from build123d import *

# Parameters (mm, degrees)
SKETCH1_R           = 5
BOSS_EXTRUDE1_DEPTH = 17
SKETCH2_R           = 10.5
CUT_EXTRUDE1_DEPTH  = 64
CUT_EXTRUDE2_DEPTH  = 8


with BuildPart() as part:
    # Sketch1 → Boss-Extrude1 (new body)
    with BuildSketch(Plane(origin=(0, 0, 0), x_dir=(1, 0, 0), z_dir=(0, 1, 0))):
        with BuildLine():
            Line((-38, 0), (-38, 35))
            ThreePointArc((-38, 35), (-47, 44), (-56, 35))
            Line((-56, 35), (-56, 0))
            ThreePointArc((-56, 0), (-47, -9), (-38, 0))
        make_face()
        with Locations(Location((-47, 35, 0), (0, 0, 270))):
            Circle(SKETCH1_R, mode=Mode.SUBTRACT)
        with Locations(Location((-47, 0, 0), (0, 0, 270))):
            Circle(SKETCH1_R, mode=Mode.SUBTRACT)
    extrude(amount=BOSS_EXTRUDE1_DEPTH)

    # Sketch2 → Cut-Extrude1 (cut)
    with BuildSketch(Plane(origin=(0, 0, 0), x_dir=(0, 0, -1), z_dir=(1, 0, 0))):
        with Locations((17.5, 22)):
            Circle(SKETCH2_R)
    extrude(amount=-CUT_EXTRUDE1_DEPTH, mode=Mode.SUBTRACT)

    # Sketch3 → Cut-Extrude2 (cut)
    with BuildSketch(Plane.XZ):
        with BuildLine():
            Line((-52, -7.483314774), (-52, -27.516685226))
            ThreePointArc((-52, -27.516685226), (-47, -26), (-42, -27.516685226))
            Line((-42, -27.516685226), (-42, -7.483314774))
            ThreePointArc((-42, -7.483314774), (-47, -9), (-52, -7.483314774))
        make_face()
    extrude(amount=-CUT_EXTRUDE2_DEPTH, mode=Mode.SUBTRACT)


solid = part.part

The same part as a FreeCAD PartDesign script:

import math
import FreeCAD as App
import Part
import Sketcher

V = App.Vector

doc = App.newDocument("Part")
body = doc.addObject("PartDesign::Body", "Body")

sketch1 = body.newObject("Sketcher::SketchObject", "Sketch")
sketch1.AttachmentSupport = (doc.getObject("XZ_Plane"), [""])
sketch1.MapMode = "FlatFace"
sketch1.addGeometry([
    Part.LineSegment(V(-38, 0, 0), V(-38, -35, 0)),
    Part.ArcOfCircle(Part.Circle(V(-47, -35, 0), V(0, 0, 1), 9), math.radians(180), math.radians(360)),
    Part.LineSegment(V(-56, -35, 0), V(-56, 0, 0)),
    Part.ArcOfCircle(Part.Circle(V(-47, 0, 0), V(0, 0, 1), 9), math.radians(0), math.radians(180)),
    Part.Circle(V(-47, 0, 0), V(0, 0, 1), 5),
    Part.Circle(V(-47, -35, 0), V(0, 0, 1), 5),
], False)
sketch1.addConstraint([
    Sketcher.Constraint("Tangent", 0, 2, 1, 2),
    Sketcher.Constraint("Tangent", 1, 1, 2, 1),
    Sketcher.Constraint("Tangent", 2, 2, 3, 2),
    Sketcher.Constraint("Tangent", 3, 1, 0, 1),
    Sketcher.Constraint("Vertical", 0),
    Sketcher.Constraint("Vertical", 2),
    Sketcher.Constraint("Coincident", 4, 3, 3, 3),
    Sketcher.Constraint("Coincident", 5, 3, 1, 3),
    Sketcher.Constraint("Equal", 4, 5),
    Sketcher.Constraint("PointOnObject", 3, 3, -1),
    Sketcher.Constraint("Diameter", 4, 10.0),
    Sketcher.Constraint("Radius", 1, 9.0),
    Sketcher.Constraint("DistanceY", 0, 2, 0, 1, 35.0),
    Sketcher.Constraint("DistanceX", 1, 3, -1, 1, 47.0),
])
pad1 = body.newObject("PartDesign::Pad", "Pad")
pad1.Profile = sketch1
pad1.Length = 17
pad1.Reversed = True

sketch2 = body.newObject("Sketcher::SketchObject", "Sketch001")
sketch2.AttachmentSupport = (doc.getObject("YZ_Plane"), [""])
sketch2.MapMode = "FlatFace"
sketch2.addGeometry(Part.Circle(V(22, -17.5, 0), V(0, 0, 1), 10.5), False)
sketch2.addConstraint([
    Sketcher.Constraint("Diameter", 0, 21.0),
    Sketcher.Constraint("DistanceX", -1, 1, 0, 3, 22.0),
    Sketcher.Constraint("DistanceY", 0, 3, -1, 1, 17.5),
])
pocket1 = body.newObject("PartDesign::Pocket", "Pocket")
pocket1.Profile = sketch2
pocket1.Length = 64

sketch3 = body.newObject("Sketcher::SketchObject", "Sketch002")
sketch3.AttachmentSupport = (doc.getObject("XZ_Plane"), [""])
sketch3.MapMode = "FlatFace"
sketch3.addGeometry([
    Part.LineSegment(V(-52, -7.483315, 0), V(-52, -27.516685, 0)),
    Part.ArcOfCircle(Part.Circle(V(-47, -35, 0), V(0, 0, 1), 9), math.radians(56.251011), math.radians(123.748989)),
    Part.LineSegment(V(-42, -27.516685, 0), V(-42, -7.483315, 0)),
    Part.ArcOfCircle(Part.Circle(V(-47, 0, 0), V(0, 0, 1), 9), math.radians(-123.748989), math.radians(-56.251011)),
], False)
sketch3.addConstraint([
    Sketcher.Constraint("Coincident", 0, 2, 1, 2),
    Sketcher.Constraint("Coincident", 1, 1, 2, 1),
    Sketcher.Constraint("Coincident", 2, 2, 3, 2),
    Sketcher.Constraint("Coincident", 3, 1, 0, 1),
    Sketcher.Constraint("Vertical", 0),
    Sketcher.Constraint("Vertical", 2),
    Sketcher.Constraint("Equal", 1, 3),
    Sketcher.Constraint("PointOnObject", 3, 3, -1),
    Sketcher.Constraint("Horizontal", 0, 2, 1, 1),
    Sketcher.Constraint("Horizontal", 2, 2, 3, 1),
    Sketcher.Constraint("Radius", 1, 9.0),
    Sketcher.Constraint("DistanceX", 1, 3, -1, 1, 47.0),
    Sketcher.Constraint("DistanceY", 1, 3, -1, 1, 35.0),
    Sketcher.Constraint("DistanceX", 0, 2, -1, 1, 52.0),
])
pocket2 = body.newObject("PartDesign::Pocket", "Pocket001")
pocket2.Profile = sketch3
pocket2.Length = 8

doc.recompute()
